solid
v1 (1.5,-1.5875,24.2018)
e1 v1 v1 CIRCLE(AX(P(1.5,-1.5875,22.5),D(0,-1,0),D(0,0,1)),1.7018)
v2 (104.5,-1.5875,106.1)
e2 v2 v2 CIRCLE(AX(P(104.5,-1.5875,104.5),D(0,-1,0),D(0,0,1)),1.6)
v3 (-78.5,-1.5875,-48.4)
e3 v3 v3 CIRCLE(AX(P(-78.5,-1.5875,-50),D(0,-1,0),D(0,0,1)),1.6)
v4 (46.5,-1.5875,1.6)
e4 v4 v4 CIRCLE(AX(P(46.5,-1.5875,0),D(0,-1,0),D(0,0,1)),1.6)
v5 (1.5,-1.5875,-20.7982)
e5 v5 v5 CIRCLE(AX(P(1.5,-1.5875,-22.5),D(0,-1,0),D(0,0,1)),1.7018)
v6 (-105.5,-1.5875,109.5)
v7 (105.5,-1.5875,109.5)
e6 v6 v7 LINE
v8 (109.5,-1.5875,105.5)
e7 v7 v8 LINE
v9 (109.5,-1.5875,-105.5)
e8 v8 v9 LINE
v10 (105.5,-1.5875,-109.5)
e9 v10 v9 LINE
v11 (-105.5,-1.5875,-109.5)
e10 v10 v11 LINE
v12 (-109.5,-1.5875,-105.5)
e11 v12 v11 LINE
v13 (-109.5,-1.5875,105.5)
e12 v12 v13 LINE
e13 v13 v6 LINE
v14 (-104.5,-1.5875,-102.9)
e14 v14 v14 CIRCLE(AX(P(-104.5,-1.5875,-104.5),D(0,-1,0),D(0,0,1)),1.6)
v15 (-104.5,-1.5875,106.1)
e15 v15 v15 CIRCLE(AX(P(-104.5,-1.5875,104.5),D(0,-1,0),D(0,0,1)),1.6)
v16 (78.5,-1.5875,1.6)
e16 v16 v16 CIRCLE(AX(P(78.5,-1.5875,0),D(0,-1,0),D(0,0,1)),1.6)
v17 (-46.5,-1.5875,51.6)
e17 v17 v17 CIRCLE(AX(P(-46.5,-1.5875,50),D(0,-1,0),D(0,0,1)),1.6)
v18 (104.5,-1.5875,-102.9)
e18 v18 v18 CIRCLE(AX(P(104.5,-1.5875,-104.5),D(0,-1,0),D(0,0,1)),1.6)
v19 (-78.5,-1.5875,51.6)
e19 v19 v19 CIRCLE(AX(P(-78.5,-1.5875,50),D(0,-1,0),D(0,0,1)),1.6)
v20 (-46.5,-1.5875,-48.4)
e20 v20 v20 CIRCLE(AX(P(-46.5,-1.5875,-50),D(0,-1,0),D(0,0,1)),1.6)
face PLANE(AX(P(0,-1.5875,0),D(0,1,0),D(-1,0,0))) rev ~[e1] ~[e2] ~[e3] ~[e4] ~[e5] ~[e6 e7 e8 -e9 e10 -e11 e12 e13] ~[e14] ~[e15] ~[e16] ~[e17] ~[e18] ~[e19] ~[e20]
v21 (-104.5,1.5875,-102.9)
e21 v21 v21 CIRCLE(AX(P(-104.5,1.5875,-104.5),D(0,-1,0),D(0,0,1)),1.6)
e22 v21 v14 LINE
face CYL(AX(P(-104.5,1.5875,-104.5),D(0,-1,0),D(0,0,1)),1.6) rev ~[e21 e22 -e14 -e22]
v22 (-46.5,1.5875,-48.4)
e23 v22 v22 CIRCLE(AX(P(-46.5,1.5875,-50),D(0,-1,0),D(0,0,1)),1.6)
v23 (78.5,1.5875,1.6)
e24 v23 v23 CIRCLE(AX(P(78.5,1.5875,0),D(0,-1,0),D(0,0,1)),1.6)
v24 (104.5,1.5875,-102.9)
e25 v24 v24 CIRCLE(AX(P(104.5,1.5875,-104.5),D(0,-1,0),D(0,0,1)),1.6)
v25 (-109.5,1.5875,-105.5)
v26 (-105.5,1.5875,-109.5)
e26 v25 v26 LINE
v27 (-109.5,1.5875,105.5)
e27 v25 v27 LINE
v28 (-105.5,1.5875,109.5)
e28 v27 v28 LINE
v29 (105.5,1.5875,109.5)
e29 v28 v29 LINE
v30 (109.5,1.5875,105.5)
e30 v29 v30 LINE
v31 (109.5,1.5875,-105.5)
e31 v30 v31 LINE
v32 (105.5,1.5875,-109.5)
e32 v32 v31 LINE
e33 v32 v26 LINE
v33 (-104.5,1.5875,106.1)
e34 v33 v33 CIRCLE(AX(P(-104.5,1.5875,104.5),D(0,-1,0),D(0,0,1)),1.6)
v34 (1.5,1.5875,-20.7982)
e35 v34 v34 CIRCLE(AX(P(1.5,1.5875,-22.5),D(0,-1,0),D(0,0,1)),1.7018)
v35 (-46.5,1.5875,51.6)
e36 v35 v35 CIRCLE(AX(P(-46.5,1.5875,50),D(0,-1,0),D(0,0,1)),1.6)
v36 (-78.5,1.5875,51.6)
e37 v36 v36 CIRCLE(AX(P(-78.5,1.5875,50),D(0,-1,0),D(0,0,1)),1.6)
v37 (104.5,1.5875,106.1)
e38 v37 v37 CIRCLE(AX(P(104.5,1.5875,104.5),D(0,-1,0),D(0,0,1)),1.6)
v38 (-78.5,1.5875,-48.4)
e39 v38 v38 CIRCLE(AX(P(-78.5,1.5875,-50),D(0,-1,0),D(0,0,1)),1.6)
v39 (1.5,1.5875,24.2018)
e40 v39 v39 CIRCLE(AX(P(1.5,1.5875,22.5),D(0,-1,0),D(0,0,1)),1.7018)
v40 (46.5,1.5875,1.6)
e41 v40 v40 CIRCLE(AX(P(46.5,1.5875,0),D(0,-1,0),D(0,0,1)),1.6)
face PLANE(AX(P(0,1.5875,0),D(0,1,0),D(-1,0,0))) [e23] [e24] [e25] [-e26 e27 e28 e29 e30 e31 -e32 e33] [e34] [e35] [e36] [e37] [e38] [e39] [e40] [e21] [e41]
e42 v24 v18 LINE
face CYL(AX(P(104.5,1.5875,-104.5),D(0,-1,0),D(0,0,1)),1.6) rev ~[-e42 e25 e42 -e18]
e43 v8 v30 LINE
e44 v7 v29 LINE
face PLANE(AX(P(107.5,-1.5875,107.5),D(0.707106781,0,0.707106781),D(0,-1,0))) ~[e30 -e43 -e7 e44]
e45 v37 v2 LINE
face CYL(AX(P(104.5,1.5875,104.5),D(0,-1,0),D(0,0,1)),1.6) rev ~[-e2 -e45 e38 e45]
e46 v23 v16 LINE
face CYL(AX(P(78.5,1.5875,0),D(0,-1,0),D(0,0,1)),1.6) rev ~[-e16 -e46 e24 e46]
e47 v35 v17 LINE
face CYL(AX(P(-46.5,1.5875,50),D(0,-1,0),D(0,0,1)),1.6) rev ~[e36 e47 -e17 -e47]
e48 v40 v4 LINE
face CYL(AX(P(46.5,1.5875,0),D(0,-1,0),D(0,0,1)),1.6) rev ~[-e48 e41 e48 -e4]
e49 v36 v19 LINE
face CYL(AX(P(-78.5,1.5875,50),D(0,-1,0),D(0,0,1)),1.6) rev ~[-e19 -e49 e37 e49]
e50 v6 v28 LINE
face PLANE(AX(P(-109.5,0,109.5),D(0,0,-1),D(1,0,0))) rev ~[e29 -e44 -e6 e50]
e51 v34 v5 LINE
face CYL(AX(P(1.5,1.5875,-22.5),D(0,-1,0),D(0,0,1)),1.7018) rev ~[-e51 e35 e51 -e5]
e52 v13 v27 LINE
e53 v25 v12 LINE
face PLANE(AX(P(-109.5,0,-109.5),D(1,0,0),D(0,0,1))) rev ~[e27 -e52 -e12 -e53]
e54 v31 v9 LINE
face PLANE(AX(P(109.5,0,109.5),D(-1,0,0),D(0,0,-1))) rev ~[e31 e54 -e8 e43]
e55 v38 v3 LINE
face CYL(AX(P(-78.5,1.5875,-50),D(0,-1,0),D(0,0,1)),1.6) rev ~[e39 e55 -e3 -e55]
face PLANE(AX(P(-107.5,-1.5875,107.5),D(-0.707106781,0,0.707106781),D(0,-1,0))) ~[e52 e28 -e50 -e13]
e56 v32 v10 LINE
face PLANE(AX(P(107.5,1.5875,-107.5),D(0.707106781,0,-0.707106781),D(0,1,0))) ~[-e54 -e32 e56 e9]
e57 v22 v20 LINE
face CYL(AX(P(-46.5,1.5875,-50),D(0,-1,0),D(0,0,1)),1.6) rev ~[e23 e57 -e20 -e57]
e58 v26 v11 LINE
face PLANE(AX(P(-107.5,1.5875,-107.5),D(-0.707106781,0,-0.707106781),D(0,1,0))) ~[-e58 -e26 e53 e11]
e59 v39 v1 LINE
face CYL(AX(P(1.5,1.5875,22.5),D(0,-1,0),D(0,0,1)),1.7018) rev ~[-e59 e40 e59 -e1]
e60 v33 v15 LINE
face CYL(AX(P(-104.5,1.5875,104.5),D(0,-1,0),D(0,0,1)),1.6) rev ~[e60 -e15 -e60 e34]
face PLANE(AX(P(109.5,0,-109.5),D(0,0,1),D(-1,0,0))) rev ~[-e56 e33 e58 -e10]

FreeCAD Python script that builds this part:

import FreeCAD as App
import Part
import Sketcher
from FreeCAD import Vector


def edges_at(feature, points):
    """Names of the edges that pass closest to the given points."""
    edges = feature.Shape.Edges
    near = lambda p: min(range(len(edges)), key=lambda i: edges[i].distToShape(Part.Vertex(*p))[0])
    return sorted({f"Edge{near(p) + 1}" for p in points})


def add_polygon(sketch, points):
    """Adds a closed chain of lines whose ends are joined by coincident constraints."""
    first, n = sketch.GeometryCount, len(points)
    for a, b in zip(points, points[1:] + points[:1]):
        sketch.addGeometry(Part.LineSegment(App.Vector(*a, 0), App.Vector(*b, 0)), False)
    for i in range(n):
        sketch.addConstraint(Sketcher.Constraint("Coincident", first + i, 2, first + (i + 1) % n, 1))

doc = App.newDocument("Part")
body = doc.addObject("PartDesign::Body", "Body")

sketch1 = doc.addObject("Sketcher::SketchObject", "Sketch")
body.addObject(sketch1)
sketch1.AttachmentSupport = (doc.XZ_Plane, [""])
sketch1.MapMode = "FlatFace"
add_polygon(sketch1, [(-109.5, -109.5), (-109.5, 109.5), (109.5, 109.5), (109.5, -109.5)])
sketch1.addConstraint(Sketcher.Constraint("Vertical", 0))
sketch1.addConstraint(Sketcher.Constraint("Horizontal", 1))
sketch1.addConstraint(Sketcher.Constraint("Vertical", 2))
sketch1.addConstraint(Sketcher.Constraint("Horizontal", 3))
sketch1.addConstraint(Sketcher.Constraint("Symmetric", 0, 2, 2, 2, -1, 1))
sketch1.addConstraint(Sketcher.Constraint("Equal", 3, 0))
sketch1.addConstraint(Sketcher.Constraint("DistanceX", 1, 1, 1, 2, 219.0))
pad1 = doc.addObject("PartDesign::Pad", "Pad")
body.addObject(pad1)
pad1.Profile = sketch1
pad1.Length = 3.175
pad1.Midplane = True
doc.recompute()

chamfer = doc.addObject("PartDesign::Chamfer", "Chamfer")
body.addObject(chamfer)
chamfer.Base = (pad1, edges_at(pad1, [
    (-109.5, 0, 109.5),
    (-109.5, 0, -109.5),
    (109.5, 0, -109.5),
    (109.5, 0, 109.5),
]))
chamfer.Size = 4

sketch2 = doc.addObject("Sketcher::SketchObject", "Sketch001")
body.addObject(sketch2)
sketch2.AttachmentSupport = (doc.XZ_Plane, [""])
sketch2.MapMode = "FlatFace"
sketch2.AttachmentOffset = App.Placement(Vector(0, 0, -1.5875), App.Rotation())
sketch2.addGeometry(Part.Circle(Vector(-104.5, -104.5, 0), Vector(0, 0, 1), 1.6), False)
sketch2.addGeometry(Part.Circle(Vector(104.5, -104.5, 0), Vector(0, 0, 1), 1.6), False)
sketch2.addGeometry(Part.Circle(Vector(104.5, 104.5, 0), Vector(0, 0, 1), 1.6), False)
sketch2.addGeometry(Part.Circle(Vector(-104.5, 104.5, 0), Vector(0, 0, 1), 1.6), False)
sketch2.addGeometry(Part.Circle(Vector(-78.5, -50, 0), Vector(0, 0, 1), 1.6), False)
sketch2.addGeometry(Part.Circle(Vector(-46.5, -50, 0), Vector(0, 0, 1), 1.6), False)
sketch2.addGeometry(Part.Circle(Vector(46.5, 0, 0), Vector(0, 0, 1), 1.6), False)
sketch2.addGeometry(Part.Circle(Vector(78.5, 0, 0), Vector(0, 0, 1), 1.6), False)
sketch2.addGeometry(Part.Circle(Vector(-46.5, 50, 0), Vector(0, 0, 1), 1.6), False)
sketch2.addGeometry(Part.Circle(Vector(-78.5, 50, 0), Vector(0, 0, 1), 1.6), False)
sketch2.addConstraint(Sketcher.Constraint("Equal", 0, 1))
sketch2.addConstraint(Sketcher.Constraint("Equal", 1, 2))
sketch2.addConstraint(Sketcher.Constraint("Equal", 2, 3))
sketch2.addConstraint(Sketcher.Constraint("Equal", 3, 4))
sketch2.addConstraint(Sketcher.Constraint("Equal", 4, 5))
sketch2.addConstraint(Sketcher.Constraint("Equal", 5, 6))
sketch2.addConstraint(Sketcher.Constraint("Equal", 6, 7))
sketch2.addConstraint(Sketcher.Constraint("Equal", 7, 8))
sketch2.addConstraint(Sketcher.Constraint("Equal", 8, 9))
sketch2.addConstraint(Sketcher.Constraint("Symmetric", 0, 3, 2, 3, -1, 1))
sketch2.addConstraint(Sketcher.Constraint("Symmetric", 1, 3, 3, 3, -1, 1))
sketch2.addConstraint(Sketcher.Constraint("Symmetric", 0, 3, 1, 3, -2))
sketch2.addConstraint(Sketcher.Constraint("Symmetric", 5, 3, 8, 3, -1))
sketch2.addConstraint(Sketcher.Constraint("Symmetric", 4, 3, 9, 3, -1))
sketch2.addConstraint(Sketcher.Constraint("PointOnObject", 6, 3, -1))
sketch2.addConstraint(Sketcher.Constraint("PointOnObject", 7, 3, -1))
sketch2.addConstraint(Sketcher.Constraint("Horizontal", 4, 3, 5, 3))
sketch2.addConstraint(Sketcher.Constraint("Diameter", 0, 3.2))
sketch2.addConstraint(Sketcher.Constraint("DistanceY", 4, 3, -1, 1, 50.0))
sketch2.addConstraint(Sketcher.Constraint("DistanceX", 0, 3, 1, 3, 209.0))
sketch2.addConstraint(Sketcher.Constraint("DistanceY", 1, 3, 2, 3, 209.0))
sketch2.addConstraint(Sketcher.Constraint("DistanceX", 0, 3, 4, 3, 26.0))
sketch2.addConstraint(Sketcher.Constraint("DistanceX", 4, 3, 5, 3, 32.0))
sketch2.addConstraint(Sketcher.Constraint("DistanceX", 5, 3, 6, 3, 93.0))
sketch2.addConstraint(Sketcher.Constraint("DistanceX", 6, 3, 7, 3, 32.0))
doc.recompute()
hole = doc.addObject("PartDesign::Hole", "Hole")
body.addObject(hole)
hole.Profile = sketch2
hole.ThreadType = "None"
hole.Diameter = 3.2
hole.DepthType = "ThroughAll"
hole.Reversed = True

sketch3 = doc.addObject("Sketcher::SketchObject", "Sketch002")
body.addObject(sketch3)
sketch3.AttachmentSupport = (doc.XZ_Plane, [""])
sketch3.MapMode = "FlatFace"
sketch3.AttachmentOffset = App.Placement(Vector(0, 0, -1.5875), App.Rotation())
sketch3.addGeometry(Part.Circle(Vector(1.5, -22.5, 0), Vector(0, 0, 1), 1.7018), False)
sketch3.addGeometry(Part.Circle(Vector(1.5, 22.5, 0), Vector(0, 0, 1), 1.7018), False)
sketch3.addConstraint(Sketcher.Constraint("Equal", 0, 1))
sketch3.addConstraint(Sketcher.Constraint("Symmetric", 0, 3, 1, 3, -1))
sketch3.addConstraint(Sketcher.Constraint("DistanceY", 0, 3, 1, 3, 45.0))
sketch3.addConstraint(Sketcher.Constraint("Diameter", 0, 3.4036))
sketch3.addConstraint(Sketcher.Constraint("DistanceX", -1, 1, 0, 3, 1.5))
doc.recompute()
hole2 = doc.addObject("PartDesign::Hole", "Hole001")
body.addObject(hole2)
hole2.Profile = sketch3
hole2.ThreadType = "None"
hole2.Diameter = 3.4036
hole2.DepthType = "Dimension"
hole2.Depth = 6.4
hole2.DrillPoint = "Flat"
hole2.Reversed = True

doc.recompute()
